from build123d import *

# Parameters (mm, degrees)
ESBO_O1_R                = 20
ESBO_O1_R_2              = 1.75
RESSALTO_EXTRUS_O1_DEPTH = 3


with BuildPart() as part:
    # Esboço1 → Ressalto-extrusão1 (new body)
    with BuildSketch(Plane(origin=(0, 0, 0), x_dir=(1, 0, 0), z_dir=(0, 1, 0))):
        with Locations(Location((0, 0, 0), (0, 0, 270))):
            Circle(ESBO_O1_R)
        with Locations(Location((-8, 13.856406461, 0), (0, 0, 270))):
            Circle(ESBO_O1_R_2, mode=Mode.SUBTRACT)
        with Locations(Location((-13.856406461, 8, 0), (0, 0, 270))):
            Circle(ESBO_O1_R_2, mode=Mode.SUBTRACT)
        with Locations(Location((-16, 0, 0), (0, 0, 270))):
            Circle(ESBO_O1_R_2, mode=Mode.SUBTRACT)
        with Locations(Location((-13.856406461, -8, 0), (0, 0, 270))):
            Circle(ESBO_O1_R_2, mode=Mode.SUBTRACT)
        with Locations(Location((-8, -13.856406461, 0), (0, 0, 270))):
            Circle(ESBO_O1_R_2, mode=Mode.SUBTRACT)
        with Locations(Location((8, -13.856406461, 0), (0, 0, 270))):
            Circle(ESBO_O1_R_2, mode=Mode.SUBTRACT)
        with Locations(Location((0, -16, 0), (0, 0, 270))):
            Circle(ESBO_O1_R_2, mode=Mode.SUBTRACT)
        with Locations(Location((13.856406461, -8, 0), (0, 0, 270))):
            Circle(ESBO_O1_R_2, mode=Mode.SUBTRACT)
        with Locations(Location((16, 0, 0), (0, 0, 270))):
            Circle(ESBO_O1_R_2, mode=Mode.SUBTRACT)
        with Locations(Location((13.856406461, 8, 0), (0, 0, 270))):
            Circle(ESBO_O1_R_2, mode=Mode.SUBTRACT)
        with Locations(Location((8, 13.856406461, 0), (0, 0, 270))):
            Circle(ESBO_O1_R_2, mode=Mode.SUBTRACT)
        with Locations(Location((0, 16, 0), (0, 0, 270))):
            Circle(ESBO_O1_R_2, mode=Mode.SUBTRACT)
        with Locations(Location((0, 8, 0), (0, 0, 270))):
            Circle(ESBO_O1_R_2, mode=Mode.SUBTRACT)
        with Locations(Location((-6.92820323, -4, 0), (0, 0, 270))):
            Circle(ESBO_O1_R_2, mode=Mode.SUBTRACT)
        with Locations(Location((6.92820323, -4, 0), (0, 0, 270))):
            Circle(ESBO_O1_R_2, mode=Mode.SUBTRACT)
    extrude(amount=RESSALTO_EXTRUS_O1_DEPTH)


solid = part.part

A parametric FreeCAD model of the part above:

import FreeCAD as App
import Part
import Sketcher
from FreeCAD import Vector
Q = App.Units.Quantity

doc = App.newDocument("Part")
body = doc.addObject("PartDesign::Body", "Body")

sketch1 = doc.addObject("Sketcher::SketchObject", "Sketch")
body.addObject(sketch1)
sketch1.AttachmentSupport = (doc.XZ_Plane, [""])
sketch1.MapMode = "FlatFace"
sketch1.addGeometry(Part.Circle(Vector(0, 0, 0), Vector(0, 0, 1), 20), False)
sketch1.addGeometry(Part.Circle(Vector(-13.9, -8, 0), Vector(0, 0, 1), 1.8), False)
sketch1.addGeometry(Part.Circle(Vector(-8, -13.9, 0), Vector(0, 0, 1), 1.8), False)
sketch1.addGeometry(Part.Circle(Vector(0, -16, 0), Vector(0, 0, 1), 1.8), False)
sketch1.addGeometry(Part.Circle(Vector(0, -8, 0), Vector(0, 0, 1), 1.8), False)
sketch1.addGeometry(Part.Circle(Vector(-16, 0, 0), Vector(0, 0, 1), 1.8), False)
sketch1.addGeometry(Part.Circle(Vector(-13.9, 8, 0), Vector(0, 0, 1), 1.8), False)
sketch1.addGeometry(Part.Circle(Vector(-6.9, 4, 0), Vector(0, 0, 1), 1.8), False)
sketch1.addGeometry(Part.Circle(Vector(-8, 13.9, 0), Vector(0, 0, 1), 1.8), False)
sketch1.addGeometry(Part.Circle(Vector(8, -13.9, 0), Vector(0, 0, 1), 1.8), False)
sketch1.addGeometry(Part.Circle(Vector(13.9, -8, 0), Vector(0, 0, 1), 1.8), False)
sketch1.addGeometry(Part.Circle(Vector(16, 0, 0), Vector(0, 0, 1), 1.8), False)
sketch1.addGeometry(Part.Circle(Vector(6.9, 4, 0), Vector(0, 0, 1), 1.8), False)
sketch1.addGeometry(Part.Circle(Vector(0, 16, 0), Vector(0, 0, 1), 1.8), False)
sketch1.addGeometry(Part.Circle(Vector(8, 13.9, 0), Vector(0, 0, 1), 1.8), False)
sketch1.addGeometry(Part.Circle(Vector(13.9, 8, 0), Vector(0, 0, 1), 1.8), False)
sketch1.addConstraint(Sketcher.Constraint("Coincident", 0, 3, -1, 1))
sketch1.addConstraint(Sketcher.Constraint("Equal", 1, 2))
sketch1.addConstraint(Sketcher.Constraint("Equal", 2, 3))
sketch1.addConstraint(Sketcher.Constraint("Equal", 3, 4))
sketch1.addConstraint(Sketcher.Constraint("Equal", 4, 5))
sketch1.addConstraint(Sketcher.Constraint("Equal", 5, 6))
sketch1.addConstraint(Sketcher.Constraint("Equal", 6, 7))
sketch1.addConstraint(Sketcher.Constraint("Equal", 7, 8))
sketch1.addConstraint(Sketcher.Constraint("Equal", 8, 9))
sketch1.addConstraint(Sketcher.Constraint("Equal", 9, 10))
sketch1.addConstraint(Sketcher.Constraint("Equal", 10, 11))
sketch1.addConstraint(Sketcher.Constraint("Equal", 11, 12))
sketch1.addConstraint(Sketcher.Constraint("Equal", 12, 13))
sketch1.addConstraint(Sketcher.Constraint("Equal", 13, 14))
sketch1.addConstraint(Sketcher.Constraint("Equal", 14, 15))
sketch1.addConstraint(Sketcher.Constraint("Symmetric", 8, 3, 9, 3, -1, 1))
sketch1.addConstraint(Sketcher.Constraint("Symmetric", 6, 3, 10, 3, -1, 1))
sketch1.addConstraint(Sketcher.Constraint("Symmetric", 5, 3, 11, 3, -1, 1))
sketch1.addConstraint(Sketcher.Constraint("Symmetric", 3, 3, 13, 3, -1, 1))
sketch1.addConstraint(Sketcher.Constraint("Symmetric", 2, 3, 14, 3, -1, 1))
sketch1.addConstraint(Sketcher.Constraint("Symmetric", 1, 3, 15, 3, -1, 1))
sketch1.addConstraint(Sketcher.Constraint("Symmetric", 2, 3, 9, 3, -2))
sketch1.addConstraint(Sketcher.Constraint("Symmetric", 1, 3, 10, 3, -2))
sketch1.addConstraint(Sketcher.Constraint("Symmetric", 7, 3, 12, 3, -2))
sketch1.addConstraint(Sketcher.Constraint("PointOnObject", 3, 3, -2))
sketch1.addConstraint(Sketcher.Constraint("PointOnObject", 4, 3, -2))
sketch1.addConstraint(Sketcher.Constraint("PointOnObject", 5, 3, -1))
sketch1.addConstraint(Sketcher.Constraint("Horizontal", 1, 3, 4, 3))
sketch1.addConstraint(Sketcher.Constraint("Diameter", 0, Q("40 mm")))
sketch1.addConstraint(Sketcher.Constraint("Diameter", 1, Q("3.5 mm")))
sketch1.addConstraint(Sketcher.Constraint("DistanceY", 1, 3, -1, 1, Q("8 mm")))
sketch1.addConstraint(Sketcher.Constraint("DistanceX", 2, 3, -1, 1, Q("8 mm")))
sketch1.addConstraint(Sketcher.Constraint("DistanceY", 3, 3, -1, 1, Q("16 mm")))
sketch1.addConstraint(Sketcher.Constraint("DistanceX", 5, 3, -1, 1, Q("16 mm")))
sketch1.addConstraint(Sketcher.Constraint("DistanceY", -1, 1, 7, 3, Q("4 mm")))
sketch1.addConstraint(Sketcher.Constraint("DistanceX", 1, 3, -1, 1, Q("13.856406 mm")))
sketch1.addConstraint(Sketcher.Constraint("DistanceY", 2, 3, -1, 1, Q("13.856406 mm")))
sketch1.addConstraint(Sketcher.Constraint("DistanceX", 7, 3, -1, 1, Q("6.928203 mm")))
pad1 = doc.addObject("PartDesign::Pad", "Pad")
body.addObject(pad1)
pad1.Profile = sketch1
pad1.Length = 3
pad1.Reversed = True

doc.recompute()
